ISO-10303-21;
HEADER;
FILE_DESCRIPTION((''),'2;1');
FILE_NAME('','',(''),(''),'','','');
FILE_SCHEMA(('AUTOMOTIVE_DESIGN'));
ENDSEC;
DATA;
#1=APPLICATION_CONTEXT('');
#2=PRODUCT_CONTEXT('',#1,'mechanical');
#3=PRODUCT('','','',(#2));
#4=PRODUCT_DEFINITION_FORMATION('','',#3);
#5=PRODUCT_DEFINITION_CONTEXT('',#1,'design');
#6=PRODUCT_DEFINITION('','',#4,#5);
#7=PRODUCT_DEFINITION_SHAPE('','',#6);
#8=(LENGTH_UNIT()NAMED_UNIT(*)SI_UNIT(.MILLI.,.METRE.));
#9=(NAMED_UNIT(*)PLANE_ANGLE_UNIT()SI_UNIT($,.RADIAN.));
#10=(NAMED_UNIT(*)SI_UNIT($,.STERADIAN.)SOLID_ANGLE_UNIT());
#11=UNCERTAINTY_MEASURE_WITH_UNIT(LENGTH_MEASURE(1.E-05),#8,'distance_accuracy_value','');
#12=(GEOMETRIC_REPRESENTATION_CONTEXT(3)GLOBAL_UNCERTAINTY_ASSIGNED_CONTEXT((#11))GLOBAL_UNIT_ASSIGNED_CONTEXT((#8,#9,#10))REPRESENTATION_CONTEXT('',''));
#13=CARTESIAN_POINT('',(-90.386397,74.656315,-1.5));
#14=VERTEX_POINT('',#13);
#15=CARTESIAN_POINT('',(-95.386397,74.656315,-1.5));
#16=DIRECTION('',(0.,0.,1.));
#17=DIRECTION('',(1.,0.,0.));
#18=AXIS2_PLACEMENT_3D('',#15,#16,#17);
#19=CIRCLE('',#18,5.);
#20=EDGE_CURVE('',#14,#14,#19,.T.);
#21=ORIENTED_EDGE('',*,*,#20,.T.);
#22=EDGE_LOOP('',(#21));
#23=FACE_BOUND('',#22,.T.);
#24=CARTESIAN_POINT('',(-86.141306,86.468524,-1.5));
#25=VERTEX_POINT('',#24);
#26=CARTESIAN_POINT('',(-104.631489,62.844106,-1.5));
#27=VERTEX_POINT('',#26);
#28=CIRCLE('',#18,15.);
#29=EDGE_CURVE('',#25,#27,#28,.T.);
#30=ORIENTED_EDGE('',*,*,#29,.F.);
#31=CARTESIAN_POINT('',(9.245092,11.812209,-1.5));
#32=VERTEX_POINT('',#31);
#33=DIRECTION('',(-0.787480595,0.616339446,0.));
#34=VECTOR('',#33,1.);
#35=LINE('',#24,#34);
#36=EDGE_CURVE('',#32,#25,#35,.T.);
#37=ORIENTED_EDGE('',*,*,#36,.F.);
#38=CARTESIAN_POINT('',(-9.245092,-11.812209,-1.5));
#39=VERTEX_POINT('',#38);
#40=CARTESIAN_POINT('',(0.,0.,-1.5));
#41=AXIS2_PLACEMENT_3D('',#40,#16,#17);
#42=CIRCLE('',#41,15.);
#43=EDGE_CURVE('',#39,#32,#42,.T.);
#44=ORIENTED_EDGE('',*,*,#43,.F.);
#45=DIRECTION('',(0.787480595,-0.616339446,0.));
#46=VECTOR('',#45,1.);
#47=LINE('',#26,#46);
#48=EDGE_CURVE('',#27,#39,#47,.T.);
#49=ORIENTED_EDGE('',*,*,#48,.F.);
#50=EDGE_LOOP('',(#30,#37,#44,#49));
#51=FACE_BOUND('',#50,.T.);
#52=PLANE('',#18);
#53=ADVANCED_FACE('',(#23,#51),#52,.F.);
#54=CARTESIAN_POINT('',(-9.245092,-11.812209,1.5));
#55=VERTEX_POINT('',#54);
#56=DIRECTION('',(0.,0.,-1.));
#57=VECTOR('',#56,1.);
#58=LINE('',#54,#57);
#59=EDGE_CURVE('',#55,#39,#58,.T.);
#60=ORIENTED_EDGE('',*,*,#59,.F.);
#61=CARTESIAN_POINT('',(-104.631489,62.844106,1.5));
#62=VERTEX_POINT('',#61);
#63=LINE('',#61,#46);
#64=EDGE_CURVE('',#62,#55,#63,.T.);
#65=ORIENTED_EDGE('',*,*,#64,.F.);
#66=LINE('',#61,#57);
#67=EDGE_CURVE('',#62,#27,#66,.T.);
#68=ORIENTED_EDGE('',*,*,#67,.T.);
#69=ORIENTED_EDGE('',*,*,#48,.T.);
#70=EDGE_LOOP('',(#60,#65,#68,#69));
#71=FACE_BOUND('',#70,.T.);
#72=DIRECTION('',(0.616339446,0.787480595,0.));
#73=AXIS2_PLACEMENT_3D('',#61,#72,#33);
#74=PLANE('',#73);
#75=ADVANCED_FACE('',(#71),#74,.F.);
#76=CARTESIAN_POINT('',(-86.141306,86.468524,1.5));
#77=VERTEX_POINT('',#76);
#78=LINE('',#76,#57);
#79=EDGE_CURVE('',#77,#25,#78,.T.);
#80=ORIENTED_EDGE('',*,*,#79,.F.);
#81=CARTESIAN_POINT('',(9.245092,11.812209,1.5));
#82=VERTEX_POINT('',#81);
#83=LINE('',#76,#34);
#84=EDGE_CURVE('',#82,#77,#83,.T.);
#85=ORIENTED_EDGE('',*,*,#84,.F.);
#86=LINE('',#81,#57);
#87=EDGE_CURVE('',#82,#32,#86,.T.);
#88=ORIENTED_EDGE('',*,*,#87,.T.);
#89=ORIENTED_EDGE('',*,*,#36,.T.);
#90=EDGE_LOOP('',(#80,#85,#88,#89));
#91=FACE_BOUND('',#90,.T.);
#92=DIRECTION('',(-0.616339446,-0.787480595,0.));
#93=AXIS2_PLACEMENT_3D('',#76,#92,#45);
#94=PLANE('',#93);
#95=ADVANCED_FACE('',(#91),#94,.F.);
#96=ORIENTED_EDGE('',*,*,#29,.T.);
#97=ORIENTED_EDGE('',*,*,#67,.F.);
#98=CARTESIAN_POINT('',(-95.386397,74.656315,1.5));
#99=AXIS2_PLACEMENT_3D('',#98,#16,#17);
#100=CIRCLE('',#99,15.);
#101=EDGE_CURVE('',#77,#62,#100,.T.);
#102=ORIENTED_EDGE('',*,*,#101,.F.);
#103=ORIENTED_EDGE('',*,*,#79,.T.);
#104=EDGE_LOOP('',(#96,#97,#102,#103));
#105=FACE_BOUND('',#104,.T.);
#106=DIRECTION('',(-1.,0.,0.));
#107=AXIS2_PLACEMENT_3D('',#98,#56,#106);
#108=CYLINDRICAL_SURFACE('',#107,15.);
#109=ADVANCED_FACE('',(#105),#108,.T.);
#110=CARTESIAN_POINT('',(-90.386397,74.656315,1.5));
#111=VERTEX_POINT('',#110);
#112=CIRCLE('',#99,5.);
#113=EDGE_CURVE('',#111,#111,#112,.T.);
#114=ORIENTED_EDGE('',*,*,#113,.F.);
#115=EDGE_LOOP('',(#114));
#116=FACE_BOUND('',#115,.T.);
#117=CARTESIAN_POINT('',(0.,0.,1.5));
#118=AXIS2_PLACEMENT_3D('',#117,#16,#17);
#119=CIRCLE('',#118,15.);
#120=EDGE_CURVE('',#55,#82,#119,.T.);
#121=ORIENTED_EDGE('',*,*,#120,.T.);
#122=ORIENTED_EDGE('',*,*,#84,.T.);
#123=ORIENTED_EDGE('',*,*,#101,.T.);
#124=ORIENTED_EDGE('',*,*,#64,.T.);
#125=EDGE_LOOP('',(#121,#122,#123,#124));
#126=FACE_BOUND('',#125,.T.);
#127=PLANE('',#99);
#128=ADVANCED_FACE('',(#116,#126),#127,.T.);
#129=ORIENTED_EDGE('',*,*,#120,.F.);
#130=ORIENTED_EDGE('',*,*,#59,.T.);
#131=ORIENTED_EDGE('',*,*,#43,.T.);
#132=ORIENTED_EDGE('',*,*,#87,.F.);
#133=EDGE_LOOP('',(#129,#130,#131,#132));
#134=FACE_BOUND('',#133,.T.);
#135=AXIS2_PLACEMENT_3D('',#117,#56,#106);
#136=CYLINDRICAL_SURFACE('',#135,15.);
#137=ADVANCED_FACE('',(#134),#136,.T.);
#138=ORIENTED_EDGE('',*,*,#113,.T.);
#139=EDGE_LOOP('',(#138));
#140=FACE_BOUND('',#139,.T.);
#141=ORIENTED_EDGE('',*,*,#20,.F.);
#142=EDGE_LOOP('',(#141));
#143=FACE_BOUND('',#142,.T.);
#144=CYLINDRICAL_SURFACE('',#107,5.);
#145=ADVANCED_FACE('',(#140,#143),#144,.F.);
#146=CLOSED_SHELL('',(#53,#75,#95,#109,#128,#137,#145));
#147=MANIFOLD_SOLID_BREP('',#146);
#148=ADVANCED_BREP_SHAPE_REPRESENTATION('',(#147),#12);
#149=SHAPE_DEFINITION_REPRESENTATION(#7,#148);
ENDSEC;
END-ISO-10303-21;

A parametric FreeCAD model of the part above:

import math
import FreeCAD as App
import Part
import Sketcher
from FreeCAD import Vector
Q = App.Units.Quantity

doc = App.newDocument("Part")
params = doc.addObject("Spreadsheet::Sheet", "Params")
for row, (alias, value) in enumerate([
    ("sketch1_diameter", "10 mm"),
    ("sketch1_radius", "15 mm"),
    ("pad1_length", "3 mm"),
], start=1):
    params.set(f"A{row}", alias)
    params.set(f"B{row}", "=" + value)
    params.setAlias(f"B{row}", alias)

body = doc.addObject("PartDesign::Body", "Body")

sketch1 = doc.addObject("Sketcher::SketchObject", "Sketch")
body.addObject(sketch1)
sketch1.AttachmentSupport = (doc.XY_Plane, [""])
sketch1.MapMode = "FlatFace"
sketch1.addGeometry(Part.LineSegment(Vector(9, 12, 0), Vector(-86, 86, 0)), False)
sketch1.addGeometry(Part.ArcOfCircle(Part.Circle(Vector(-95, 75, 0), Vector(0, 0, 1), 15), math.radians(52), math.radians(232)), False)
sketch1.addGeometry(Part.LineSegment(Vector(-105, 63, 0), Vector(-9, -12, 0)), False)
sketch1.addGeometry(Part.ArcOfCircle(Part.Circle(Vector(0, 0, 0), Vector(0, 0, 1), 15), math.radians(-128), math.radians(52)), False)
sketch1.addGeometry(Part.Circle(Vector(-95, 75, 0), Vector(0, 0, 1), 5), False)
sketch1.addConstraint(Sketcher.Constraint("Tangent", 0, 2, 1, 1))
sketch1.addConstraint(Sketcher.Constraint("Tangent", 1, 2, 2, 1))
sketch1.addConstraint(Sketcher.Constraint("Tangent", 2, 2, 3, 1))
sketch1.addConstraint(Sketcher.Constraint("Tangent", 3, 2, 0, 1))
sketch1.addConstraint(Sketcher.Constraint("Coincident", 3, 3, -1, 1))
sketch1.addConstraint(Sketcher.Constraint("Coincident", 4, 3, 1, 3))
sketch1.addConstraint(Sketcher.Constraint("Equal", 1, 3))
sketch1.addConstraint(Sketcher.Constraint("Diameter", 4, Q("10 mm")))
sketch1.addConstraint(Sketcher.Constraint("Radius", 1, Q("15 mm")))
sketch1.addConstraint(Sketcher.Constraint("Distance", 0, Q("121.128569 mm")))
sketch1.addConstraint(Sketcher.Constraint("DistanceX", 1, 2, -1, 1, Q("104.631489 mm")))
sketch1.setExpression("Constraints[7]", "Params.sketch1_diameter")
sketch1.setExpression("Constraints[8]", "Params.sketch1_radius")
pad1 = doc.addObject("PartDesign::Pad", "Pad")
body.addObject(pad1)
pad1.Profile = sketch1
pad1.setExpression("Length", "Params.pad1_length")
pad1.Midplane = True

doc.recompute()
